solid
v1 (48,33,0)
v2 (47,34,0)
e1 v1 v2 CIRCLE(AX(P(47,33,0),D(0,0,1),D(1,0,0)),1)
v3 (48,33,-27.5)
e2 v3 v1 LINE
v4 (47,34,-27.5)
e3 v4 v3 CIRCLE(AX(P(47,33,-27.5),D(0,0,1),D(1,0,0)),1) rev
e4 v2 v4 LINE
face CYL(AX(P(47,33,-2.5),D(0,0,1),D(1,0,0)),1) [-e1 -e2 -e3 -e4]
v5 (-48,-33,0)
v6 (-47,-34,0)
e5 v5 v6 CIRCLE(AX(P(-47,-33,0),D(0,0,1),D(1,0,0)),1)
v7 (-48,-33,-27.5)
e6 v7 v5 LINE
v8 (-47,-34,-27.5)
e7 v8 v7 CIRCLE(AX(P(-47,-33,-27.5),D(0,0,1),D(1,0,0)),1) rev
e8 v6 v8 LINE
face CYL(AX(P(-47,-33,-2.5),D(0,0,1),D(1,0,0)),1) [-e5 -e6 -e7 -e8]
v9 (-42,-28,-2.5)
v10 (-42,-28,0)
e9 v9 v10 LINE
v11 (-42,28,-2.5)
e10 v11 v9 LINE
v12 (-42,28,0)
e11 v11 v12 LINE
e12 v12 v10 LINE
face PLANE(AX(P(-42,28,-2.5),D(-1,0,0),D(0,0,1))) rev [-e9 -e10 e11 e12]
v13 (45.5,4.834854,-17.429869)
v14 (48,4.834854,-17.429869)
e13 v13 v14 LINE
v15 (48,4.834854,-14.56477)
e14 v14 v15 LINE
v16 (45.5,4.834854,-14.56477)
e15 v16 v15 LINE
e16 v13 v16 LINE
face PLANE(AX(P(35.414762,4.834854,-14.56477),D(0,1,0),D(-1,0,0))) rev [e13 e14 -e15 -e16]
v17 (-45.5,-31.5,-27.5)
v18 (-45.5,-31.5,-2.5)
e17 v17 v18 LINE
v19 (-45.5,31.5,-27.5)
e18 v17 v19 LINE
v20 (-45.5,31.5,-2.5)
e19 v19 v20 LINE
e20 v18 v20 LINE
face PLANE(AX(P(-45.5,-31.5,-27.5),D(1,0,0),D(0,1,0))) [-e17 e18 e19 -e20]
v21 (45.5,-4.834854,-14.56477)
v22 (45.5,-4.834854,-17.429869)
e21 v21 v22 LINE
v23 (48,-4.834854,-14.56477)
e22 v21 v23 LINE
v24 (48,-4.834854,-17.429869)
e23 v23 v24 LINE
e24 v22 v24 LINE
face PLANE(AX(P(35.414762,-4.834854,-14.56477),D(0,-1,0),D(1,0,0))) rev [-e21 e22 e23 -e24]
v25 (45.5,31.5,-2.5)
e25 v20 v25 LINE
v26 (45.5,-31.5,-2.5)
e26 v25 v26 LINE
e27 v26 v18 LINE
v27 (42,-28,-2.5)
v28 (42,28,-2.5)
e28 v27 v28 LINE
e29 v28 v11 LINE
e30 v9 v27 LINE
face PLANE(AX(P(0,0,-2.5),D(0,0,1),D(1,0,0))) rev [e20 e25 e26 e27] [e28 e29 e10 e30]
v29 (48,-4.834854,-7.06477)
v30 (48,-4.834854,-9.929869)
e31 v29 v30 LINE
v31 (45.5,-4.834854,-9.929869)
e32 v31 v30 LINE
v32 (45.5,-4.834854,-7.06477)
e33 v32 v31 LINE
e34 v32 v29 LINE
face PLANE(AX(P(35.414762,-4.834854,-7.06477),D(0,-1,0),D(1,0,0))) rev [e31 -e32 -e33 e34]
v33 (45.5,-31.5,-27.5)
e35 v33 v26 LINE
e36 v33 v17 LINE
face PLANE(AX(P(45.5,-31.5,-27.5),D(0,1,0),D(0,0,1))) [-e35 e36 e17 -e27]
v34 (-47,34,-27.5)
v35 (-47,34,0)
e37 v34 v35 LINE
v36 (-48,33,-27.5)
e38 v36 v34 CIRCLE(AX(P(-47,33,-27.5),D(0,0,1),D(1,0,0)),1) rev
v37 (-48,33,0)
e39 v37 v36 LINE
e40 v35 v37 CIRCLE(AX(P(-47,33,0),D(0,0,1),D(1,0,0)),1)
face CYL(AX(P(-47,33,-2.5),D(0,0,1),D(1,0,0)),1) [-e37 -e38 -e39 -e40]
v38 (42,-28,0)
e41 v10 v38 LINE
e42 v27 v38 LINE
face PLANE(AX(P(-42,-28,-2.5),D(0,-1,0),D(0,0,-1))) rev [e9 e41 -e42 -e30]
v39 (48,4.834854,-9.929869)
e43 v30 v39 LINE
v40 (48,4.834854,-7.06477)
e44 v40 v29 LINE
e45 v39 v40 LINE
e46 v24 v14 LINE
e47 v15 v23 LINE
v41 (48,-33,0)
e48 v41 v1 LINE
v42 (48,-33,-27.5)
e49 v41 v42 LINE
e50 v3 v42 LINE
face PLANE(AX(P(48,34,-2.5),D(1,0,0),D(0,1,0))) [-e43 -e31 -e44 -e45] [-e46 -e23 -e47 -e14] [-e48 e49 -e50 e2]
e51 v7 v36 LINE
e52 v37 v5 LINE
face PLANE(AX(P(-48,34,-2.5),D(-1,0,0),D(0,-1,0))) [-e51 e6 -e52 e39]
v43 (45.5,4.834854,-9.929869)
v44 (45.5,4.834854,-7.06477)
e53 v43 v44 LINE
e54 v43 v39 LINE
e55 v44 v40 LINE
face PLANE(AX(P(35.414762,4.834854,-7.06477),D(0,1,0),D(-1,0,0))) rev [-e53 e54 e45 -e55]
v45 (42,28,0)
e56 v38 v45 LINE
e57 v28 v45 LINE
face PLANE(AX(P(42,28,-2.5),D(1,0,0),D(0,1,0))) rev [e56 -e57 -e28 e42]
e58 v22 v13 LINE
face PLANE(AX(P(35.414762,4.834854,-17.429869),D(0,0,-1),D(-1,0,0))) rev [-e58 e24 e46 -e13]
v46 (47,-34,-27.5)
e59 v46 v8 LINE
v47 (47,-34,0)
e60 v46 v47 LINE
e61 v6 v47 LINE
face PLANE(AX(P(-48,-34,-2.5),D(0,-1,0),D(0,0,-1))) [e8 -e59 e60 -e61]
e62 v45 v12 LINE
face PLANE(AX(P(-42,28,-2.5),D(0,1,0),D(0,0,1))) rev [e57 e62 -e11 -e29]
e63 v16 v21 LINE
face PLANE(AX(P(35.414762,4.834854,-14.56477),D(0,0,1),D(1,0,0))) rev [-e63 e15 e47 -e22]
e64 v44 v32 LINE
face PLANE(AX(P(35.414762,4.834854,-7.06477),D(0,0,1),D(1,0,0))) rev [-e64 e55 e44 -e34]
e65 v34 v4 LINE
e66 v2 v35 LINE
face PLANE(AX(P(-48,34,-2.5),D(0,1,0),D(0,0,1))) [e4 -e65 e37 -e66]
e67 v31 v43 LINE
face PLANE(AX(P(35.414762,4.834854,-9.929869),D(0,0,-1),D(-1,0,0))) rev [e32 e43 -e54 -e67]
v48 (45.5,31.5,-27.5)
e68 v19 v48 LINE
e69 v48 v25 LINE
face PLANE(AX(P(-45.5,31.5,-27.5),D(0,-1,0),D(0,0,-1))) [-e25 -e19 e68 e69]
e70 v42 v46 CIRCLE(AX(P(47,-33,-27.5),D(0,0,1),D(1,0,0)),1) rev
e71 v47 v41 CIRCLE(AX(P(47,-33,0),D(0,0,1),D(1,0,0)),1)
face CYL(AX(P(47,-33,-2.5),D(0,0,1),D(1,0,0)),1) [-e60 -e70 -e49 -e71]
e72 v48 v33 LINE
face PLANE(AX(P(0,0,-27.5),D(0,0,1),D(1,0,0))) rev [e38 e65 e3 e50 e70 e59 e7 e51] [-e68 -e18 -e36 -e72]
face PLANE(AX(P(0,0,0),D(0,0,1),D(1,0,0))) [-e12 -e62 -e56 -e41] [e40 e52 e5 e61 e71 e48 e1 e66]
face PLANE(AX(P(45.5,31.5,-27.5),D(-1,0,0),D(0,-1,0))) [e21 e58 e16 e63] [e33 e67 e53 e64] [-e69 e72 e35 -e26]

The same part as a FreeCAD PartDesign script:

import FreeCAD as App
import Part
import Sketcher


def edges_at(feature, points):
    """Names of the edges that pass closest to the given points."""
    edges = feature.Shape.Edges
    near = lambda p: min(range(len(edges)), key=lambda i: edges[i].distToShape(Part.Vertex(*p))[0])
    return sorted({f"Edge{near(p) + 1}" for p in points})


def add_polygon(sketch, points):
    """Adds a closed chain of lines whose ends are joined by coincident constraints."""
    first, n = sketch.GeometryCount, len(points)
    for a, b in zip(points, points[1:] + points[:1]):
        sketch.addGeometry(Part.LineSegment(App.Vector(*a, 0), App.Vector(*b, 0)), False)
    for i in range(n):
        sketch.addConstraint(Sketcher.Constraint("Coincident", first + i, 2, first + (i + 1) % n, 1))

doc = App.newDocument("Part")
body = doc.addObject("PartDesign::Body", "Body")

# Sketch on XY plane
sketch1 = doc.addObject("Sketcher::SketchObject", "Sketch")
body.addObject(sketch1)
sketch1.AttachmentSupport = (doc.XY_Plane, [""])
sketch1.MapMode = "FlatFace"
add_polygon(sketch1, [(-48, 34), (-48, -34), (48, -34), (48, 34)])  # lines 0-3
add_polygon(sketch1, [(42, -28), (-42, -28), (-42, 28), (42, 28)])  # lines 4-7
sketch1.addConstraint(Sketcher.Constraint("Vertical", 0))
sketch1.addConstraint(Sketcher.Constraint("Horizontal", 1))
sketch1.addConstraint(Sketcher.Constraint("Vertical", 2))
sketch1.addConstraint(Sketcher.Constraint("Horizontal", 3))
sketch1.addConstraint(Sketcher.Constraint("Horizontal", 4))
sketch1.addConstraint(Sketcher.Constraint("Vertical", 5))
sketch1.addConstraint(Sketcher.Constraint("Horizontal", 6))
sketch1.addConstraint(Sketcher.Constraint("Vertical", 7))
sketch1.addConstraint(Sketcher.Constraint("Symmetric", 0, 2, 2, 2, -1, 1))
sketch1.addConstraint(Sketcher.Constraint("Symmetric", 4, 2, 6, 2, -1, 1))
sketch1.addConstraint(Sketcher.Constraint("DistanceX", 1, 1, 1, 2, 96.0))
sketch1.addConstraint(Sketcher.Constraint("DistanceX", 4, 2, 4, 1, 84.0))
sketch1.addConstraint(Sketcher.Constraint("DistanceY", 0, 2, 0, 1, 68.0))
sketch1.addConstraint(Sketcher.Constraint("DistanceY", 5, 1, 5, 2, 56.0))
pad1 = doc.addObject("PartDesign::Pad", "Pad")
body.addObject(pad1)
pad1.Profile = sketch1
pad1.Length = 2.5
pad1.Reversed = True

# Sketch on XY plane
sketch2 = doc.addObject("Sketcher::SketchObject", "Sketch001")
body.addObject(sketch2)
sketch2.AttachmentSupport = (doc.XY_Plane, [""])
sketch2.MapMode = "FlatFace"
sketch2.AttachmentOffset = App.Placement(App.Vector(0, 0, -2.5), App.Rotation())
add_polygon(sketch2, [(48, 34), (48, -34), (-48, -34), (-48, 34)])  # lines 0-3
add_polygon(sketch2, [(-45.5, -31.5), (45.5, -31.5), (45.5, 31.5), (-45.5, 31.5)])  # lines 4-7
sketch2.addConstraint(Sketcher.Constraint("Vertical", 0))
sketch2.addConstraint(Sketcher.Constraint("Horizontal", 1))
sketch2.addConstraint(Sketcher.Constraint("Vertical", 2))
sketch2.addConstraint(Sketcher.Constraint("Horizontal", 3))
sketch2.addConstraint(Sketcher.Constraint("Horizontal", 4))
sketch2.addConstraint(Sketcher.Constraint("Vertical", 5))
sketch2.addConstraint(Sketcher.Constraint("Horizontal", 6))
sketch2.addConstraint(Sketcher.Constraint("Vertical", 7))
sketch2.addConstraint(Sketcher.Constraint("Symmetric", 0, 2, 2, 2, -1, 1))
sketch2.addConstraint(Sketcher.Constraint("Symmetric", 4, 2, 6, 2, -1, 1))
sketch2.addConstraint(Sketcher.Constraint("DistanceX", 1, 2, 1, 1, 96.0))
sketch2.addConstraint(Sketcher.Constraint("DistanceX", 4, 1, 4, 2, 91.0))
sketch2.addConstraint(Sketcher.Constraint("DistanceY", 0, 2, 0, 1, 68.0))
sketch2.addConstraint(Sketcher.Constraint("DistanceY", 5, 1, 5, 2, 63.0))
pad2 = doc.addObject("PartDesign::Pad", "Pad001")
body.addObject(pad2)
pad2.Profile = sketch2
pad2.Length = 25
pad2.Reversed = True
doc.recompute()

fillet = doc.addObject("PartDesign::Fillet", "Fillet")
body.addObject(fillet)
fillet.Base = (pad2, edges_at(pad2, [
    (-48, 34, -13.75),
    (48, 34, -13.75),
    (48, -34, -13.75),
    (-48, -34, -13.75),
]))
fillet.Radius = 1

# Sketch on YZ plane
sketch3 = doc.addObject("Sketcher::SketchObject", "Sketch002")
body.addObject(sketch3)
sketch3.AttachmentSupport = (doc.YZ_Plane, [""])
sketch3.MapMode = "FlatFace"
sketch3.AttachmentOffset = App.Placement(App.Vector(0, 0, 48), App.Rotation())
add_polygon(sketch3, [(4.834854, -14.56477), (-4.834854, -14.56477), (-4.834854, -17.429869), (4.834854, -17.429869)])  # lines 0-3
add_polygon(sketch3, [(4.834854, -7.06477), (-4.834854, -7.06477), (-4.834854, -9.929869), (4.834854, -9.929869)])  # lines 4-7
sketch3.addConstraint(Sketcher.Constraint("Horizontal", 0))
sketch3.addConstraint(Sketcher.Constraint("Vertical", 1))
sketch3.addConstraint(Sketcher.Constraint("Horizontal", 2))
sketch3.addConstraint(Sketcher.Constraint("Vertical", 3))
sketch3.addConstraint(Sketcher.Constraint("Horizontal", 4))
sketch3.addConstraint(Sketcher.Constraint("Vertical", 5))
sketch3.addConstraint(Sketcher.Constraint("Horizontal", 6))
sketch3.addConstraint(Sketcher.Constraint("Vertical", 7))
sketch3.addConstraint(Sketcher.Constraint("Vertical", 1, 2, 4, 2))
sketch3.addConstraint(Sketcher.Constraint("Vertical", 3, 2, 6, 2))
sketch3.addConstraint(Sketcher.Constraint("Equal", 3, 5))
sketch3.addConstraint(Sketcher.Constraint("DistanceY", 0, 2, 4, 2, 7.5))
sketch3.addConstraint(Sketcher.Constraint("DistanceY", 1, 2, 1, 1, 2.865098))
sketch3.addConstraint(Sketcher.Constraint("DistanceX", 0, 2, 0, 1, 9.669707))
sketch3.addConstraint(Sketcher.Constraint("DistanceY", 0, 2, -1, 1, 14.56477))
sketch3.addConstraint(Sketcher.Constraint("DistanceX", 0, 2, -1, 1, 4.834854))
pocket1 = doc.addObject("PartDesign::Pocket", "Pocket")
body.addObject(pocket1)
pocket1.Profile = sketch3
pocket1.Length = 2.5

doc.recompute()
